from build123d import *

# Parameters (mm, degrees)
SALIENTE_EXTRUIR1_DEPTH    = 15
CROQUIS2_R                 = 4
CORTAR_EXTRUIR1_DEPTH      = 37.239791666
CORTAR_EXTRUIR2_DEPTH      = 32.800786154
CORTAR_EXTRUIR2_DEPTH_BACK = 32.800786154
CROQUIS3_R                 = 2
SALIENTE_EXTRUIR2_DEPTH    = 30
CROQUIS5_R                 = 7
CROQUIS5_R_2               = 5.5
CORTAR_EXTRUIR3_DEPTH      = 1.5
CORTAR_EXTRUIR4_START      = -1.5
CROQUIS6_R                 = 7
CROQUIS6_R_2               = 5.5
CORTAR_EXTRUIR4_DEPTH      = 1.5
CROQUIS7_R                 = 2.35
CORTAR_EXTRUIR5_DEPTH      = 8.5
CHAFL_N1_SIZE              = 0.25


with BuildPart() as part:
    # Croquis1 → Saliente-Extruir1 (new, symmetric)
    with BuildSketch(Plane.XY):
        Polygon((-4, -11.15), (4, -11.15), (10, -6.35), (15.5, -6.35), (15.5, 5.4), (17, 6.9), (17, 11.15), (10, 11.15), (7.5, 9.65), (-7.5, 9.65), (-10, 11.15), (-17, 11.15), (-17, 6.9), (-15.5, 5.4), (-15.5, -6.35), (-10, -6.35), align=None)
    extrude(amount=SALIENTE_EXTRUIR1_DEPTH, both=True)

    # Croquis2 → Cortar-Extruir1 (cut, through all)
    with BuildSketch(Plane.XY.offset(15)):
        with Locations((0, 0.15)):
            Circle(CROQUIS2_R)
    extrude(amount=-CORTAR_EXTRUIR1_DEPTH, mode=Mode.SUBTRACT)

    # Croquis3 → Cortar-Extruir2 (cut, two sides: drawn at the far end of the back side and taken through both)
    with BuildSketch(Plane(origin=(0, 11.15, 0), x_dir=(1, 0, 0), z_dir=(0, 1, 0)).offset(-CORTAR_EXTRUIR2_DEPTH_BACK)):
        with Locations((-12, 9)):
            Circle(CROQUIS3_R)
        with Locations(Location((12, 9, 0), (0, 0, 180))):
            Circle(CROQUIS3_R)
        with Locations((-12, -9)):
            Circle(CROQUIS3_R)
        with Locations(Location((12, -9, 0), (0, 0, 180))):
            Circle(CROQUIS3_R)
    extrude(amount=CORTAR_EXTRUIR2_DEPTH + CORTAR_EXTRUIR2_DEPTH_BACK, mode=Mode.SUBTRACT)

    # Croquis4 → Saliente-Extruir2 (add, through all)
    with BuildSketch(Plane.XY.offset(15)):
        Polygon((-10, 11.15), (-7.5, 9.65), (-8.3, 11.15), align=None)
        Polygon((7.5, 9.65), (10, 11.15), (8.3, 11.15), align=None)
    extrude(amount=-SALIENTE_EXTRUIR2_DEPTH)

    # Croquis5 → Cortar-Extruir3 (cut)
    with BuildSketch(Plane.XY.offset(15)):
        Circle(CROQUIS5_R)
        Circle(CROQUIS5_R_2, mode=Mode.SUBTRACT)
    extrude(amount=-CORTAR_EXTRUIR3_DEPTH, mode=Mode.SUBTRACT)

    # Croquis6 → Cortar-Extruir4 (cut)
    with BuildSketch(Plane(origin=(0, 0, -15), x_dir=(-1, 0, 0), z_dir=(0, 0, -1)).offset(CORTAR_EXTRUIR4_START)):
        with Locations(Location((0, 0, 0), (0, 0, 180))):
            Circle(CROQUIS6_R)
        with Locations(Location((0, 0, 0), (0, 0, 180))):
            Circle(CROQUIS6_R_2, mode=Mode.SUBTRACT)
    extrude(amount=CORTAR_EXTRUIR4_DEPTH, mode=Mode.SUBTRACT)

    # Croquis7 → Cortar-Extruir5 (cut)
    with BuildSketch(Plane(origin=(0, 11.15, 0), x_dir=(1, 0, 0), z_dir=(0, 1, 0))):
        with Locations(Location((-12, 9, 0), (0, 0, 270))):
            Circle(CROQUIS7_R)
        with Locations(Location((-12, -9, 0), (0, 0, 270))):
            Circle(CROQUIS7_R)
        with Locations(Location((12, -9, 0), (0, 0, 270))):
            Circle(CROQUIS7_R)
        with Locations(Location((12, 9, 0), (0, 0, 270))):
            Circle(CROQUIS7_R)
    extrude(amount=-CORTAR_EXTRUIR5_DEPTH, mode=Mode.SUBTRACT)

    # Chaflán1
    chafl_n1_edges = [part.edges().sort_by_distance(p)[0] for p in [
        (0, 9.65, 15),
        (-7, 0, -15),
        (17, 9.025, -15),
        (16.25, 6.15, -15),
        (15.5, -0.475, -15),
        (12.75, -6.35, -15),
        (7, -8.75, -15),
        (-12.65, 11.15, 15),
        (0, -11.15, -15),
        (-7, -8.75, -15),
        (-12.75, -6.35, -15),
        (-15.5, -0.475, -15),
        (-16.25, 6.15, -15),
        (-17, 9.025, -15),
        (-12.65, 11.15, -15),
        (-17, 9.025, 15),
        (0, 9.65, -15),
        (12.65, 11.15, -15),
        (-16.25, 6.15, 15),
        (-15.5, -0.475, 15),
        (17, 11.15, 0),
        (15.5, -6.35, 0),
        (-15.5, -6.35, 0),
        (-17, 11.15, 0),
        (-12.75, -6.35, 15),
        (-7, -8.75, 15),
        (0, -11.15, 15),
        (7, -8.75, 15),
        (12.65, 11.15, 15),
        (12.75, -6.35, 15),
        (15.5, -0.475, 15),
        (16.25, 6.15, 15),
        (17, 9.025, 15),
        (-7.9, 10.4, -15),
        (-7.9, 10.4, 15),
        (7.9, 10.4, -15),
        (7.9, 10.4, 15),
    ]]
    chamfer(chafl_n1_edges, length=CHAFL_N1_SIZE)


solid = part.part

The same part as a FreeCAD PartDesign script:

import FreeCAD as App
import Part
import Sketcher
Q = App.Units.Quantity


def edges_at(feature, points):
    """Names of the edges that pass closest to the given points."""
    edges = feature.Shape.Edges
    near = lambda p: min(range(len(edges)), key=lambda i: edges[i].distToShape(Part.Vertex(*p))[0])
    return sorted({f"Edge{near(p) + 1}" for p in points})

doc = App.newDocument("Part")
body = doc.addObject("PartDesign::Body", "Body")

sketch1 = body.newObject("Sketcher::SketchObject", "Sketch")
sketch1.AttachmentSupport = (doc.getObject("XY_Plane"), [""])
sketch1.MapMode = "FlatFace"
sketch1.addGeometry([
    Part.LineSegment(App.Vector(-4, -11.2, 0), App.Vector(4, -11.2, 0)),
    Part.LineSegment(App.Vector(4, -11.2, 0), App.Vector(10, -6.3, 0)),
    Part.LineSegment(App.Vector(10, -6.3, 0), App.Vector(15.5, -6.3, 0)),
    Part.LineSegment(App.Vector(15.5, -6.3, 0), App.Vector(15.5, 5.4, 0)),
    Part.LineSegment(App.Vector(15.5, 5.4, 0), App.Vector(17, 6.9, 0)),
    Part.LineSegment(App.Vector(17, 6.9, 0), App.Vector(17, 11.2, 0)),
    Part.LineSegment(App.Vector(17, 11.2, 0), App.Vector(10, 11.2, 0)),
    Part.LineSegment(App.Vector(10, 11.2, 0), App.Vector(7.5, 9.7, 0)),
    Part.LineSegment(App.Vector(7.5, 9.7, 0), App.Vector(-7.5, 9.7, 0)),
    Part.LineSegment(App.Vector(-7.5, 9.7, 0), App.Vector(-10, 11.2, 0)),
    Part.LineSegment(App.Vector(-10, 11.2, 0), App.Vector(-17, 11.2, 0)),
    Part.LineSegment(App.Vector(-17, 11.2, 0), App.Vector(-17, 6.9, 0)),
    Part.LineSegment(App.Vector(-17, 6.9, 0), App.Vector(-15.5, 5.4, 0)),
    Part.LineSegment(App.Vector(-15.5, 5.4, 0), App.Vector(-15.5, -6.3, 0)),
    Part.LineSegment(App.Vector(-15.5, -6.3, 0), App.Vector(-10, -6.3, 0)),
    Part.LineSegment(App.Vector(-10, -6.3, 0), App.Vector(-4, -11.2, 0)),
], False)
sketch1.addConstraint([
    Sketcher.Constraint("Coincident", 0, 2, 1, 1),
    Sketcher.Constraint("Coincident", 1, 2, 2, 1),
    Sketcher.Constraint("Coincident", 2, 2, 3, 1),
    Sketcher.Constraint("Coincident", 3, 2, 4, 1),
    Sketcher.Constraint("Coincident", 4, 2, 5, 1),
    Sketcher.Constraint("Coincident", 5, 2, 6, 1),
    Sketcher.Constraint("Coincident", 6, 2, 7, 1),
    Sketcher.Constraint("Coincident", 7, 2, 8, 1),
    Sketcher.Constraint("Coincident", 8, 2, 9, 1),
    Sketcher.Constraint("Coincident", 9, 2, 10, 1),
    Sketcher.Constraint("Coincident", 10, 2, 11, 1),
    Sketcher.Constraint("Coincident", 11, 2, 12, 1),
    Sketcher.Constraint("Coincident", 12, 2, 13, 1),
    Sketcher.Constraint("Coincident", 13, 2, 14, 1),
    Sketcher.Constraint("Coincident", 14, 2, 15, 1),
    Sketcher.Constraint("Coincident", 15, 2, 0, 1),
    Sketcher.Constraint("Horizontal", 0),
    Sketcher.Constraint("Horizontal", 2),
    Sketcher.Constraint("Vertical", 3),
    Sketcher.Constraint("Vertical", 5),
    Sketcher.Constraint("Horizontal", 6),
    Sketcher.Constraint("Horizontal", 8),
    Sketcher.Constraint("Horizontal", 10),
    Sketcher.Constraint("Vertical", 11),
    Sketcher.Constraint("Vertical", 13),
    Sketcher.Constraint("Horizontal", 14),
    Sketcher.Constraint("Symmetric", 6, 2, 9, 2, -2),
    Sketcher.Constraint("Symmetric", 4, 2, 11, 2, -2),
    Sketcher.Constraint("Symmetric", 3, 2, 12, 2, -2),
    Sketcher.Constraint("Symmetric", 1, 2, 14, 2, -2),
    Sketcher.Constraint("Perpendicular", 4, 12),
    Sketcher.Constraint("Vertical", 1, 2, 6, 2),
    Sketcher.Constraint("Equal", 7, 9),
    Sketcher.Constraint("Equal", 1, 15),
    Sketcher.Constraint("DistanceX", 0, 1, 0, 2, Q("8 mm")),
    Sketcher.Constraint("DistanceX", 6, 2, 6, 1, Q("7 mm")),
    Sketcher.Constraint("DistanceX", 8, 2, 8, 1, Q("15 mm")),
    Sketcher.Constraint("DistanceX", 2, 1, 2, 2, Q("5.5 mm")),
    Sketcher.Constraint("DistanceX", -1, 1, 1, 2, Q("10 mm")),
    Sketcher.Constraint("DistanceY", 1, 2, 7, 2, Q("16 mm")),
    Sketcher.Constraint("DistanceY", 3, 1, 3, 2, Q("11.75 mm")),
    Sketcher.Constraint("DistanceY", 5, 1, 5, 2, Q("4.25 mm")),
    Sketcher.Constraint("DistanceY", -1, 1, 3, 2, Q("5.4 mm")),
    Sketcher.Constraint("DistanceY", 0, 2, 1, 2, Q("4.8 mm")),
])
pad1 = body.newObject("PartDesign::Pad", "Pad")
pad1.Profile = sketch1
pad1.Length = 30
pad1.Midplane = True

sketch2 = body.newObject("Sketcher::SketchObject", "Sketch001")
sketch2.AttachmentSupport = (doc.getObject("XY_Plane"), [""])
sketch2.MapMode = "FlatFace"
sketch2.AttachmentOffset = App.Placement(App.Vector(0, 0, 15), App.Rotation())
sketch2.addGeometry(Part.Circle(App.Vector(0, 0.1, 0), App.Vector(0, 0, 1), 4), False)
sketch2.addConstraint([
    Sketcher.Constraint("PointOnObject", 0, 3, -2),
    Sketcher.Constraint("Diameter", 0, Q("8 mm")),
    Sketcher.Constraint("DistanceY", -1, 1, 0, 3, Q("0.15 mm")),
])
pocket1 = body.newObject("PartDesign::Pocket", "Pocket")
pocket1.Profile = sketch2
pocket1.Type = "ThroughAll"

sketch3 = body.newObject("Sketcher::SketchObject", "Sketch002")
sketch3.AttachmentSupport = (doc.getObject("XZ_Plane"), [""])
sketch3.MapMode = "FlatFace"
sketch3.AttachmentOffset = App.Placement(App.Vector(0, 0, -11.15), App.Rotation())
sketch3.addGeometry([
    Part.Circle(App.Vector(-12, -9, 0), App.Vector(0, 0, 1), 2),
    Part.Circle(App.Vector(12, -9, 0), App.Vector(0, 0, 1), 2),
    Part.Circle(App.Vector(-12, 9, 0), App.Vector(0, 0, 1), 2),
    Part.Circle(App.Vector(12, 9, 0), App.Vector(0, 0, 1), 2),
], False)
sketch3.addConstraint([
    Sketcher.Constraint("Equal", 0, 1),
    Sketcher.Constraint("Equal", 1, 2),
    Sketcher.Constraint("Equal", 2, 3),
    Sketcher.Constraint("Symmetric", 1, 3, 2, 3, -1, 1),
    Sketcher.Constraint("Symmetric", 0, 3, 3, 3, -1, 1),
    Sketcher.Constraint("Symmetric", 0, 3, 1, 3, -2),
    Sketcher.Constraint("Diameter", 0, Q("4 mm")),
    Sketcher.Constraint("DistanceX", 0, 3, -1, 1, Q("12 mm")),
    Sketcher.Constraint("DistanceY", 0, 3, -1, 1, Q("9 mm")),
])
pocket2 = body.newObject("PartDesign::Pocket", "Pocket001")
pocket2.Profile = sketch3
pocket2.Type = "ThroughAll"
pocket2.Midplane = True

sketch4 = body.newObject("Sketcher::SketchObject", "Sketch003")
sketch4.AttachmentSupport = (doc.getObject("XY_Plane"), [""])
sketch4.MapMode = "FlatFace"
sketch4.AttachmentOffset = App.Placement(App.Vector(0, 0, 15), App.Rotation())
sketch4.addGeometry([
    Part.LineSegment(App.Vector(-10, 11.2, 0), App.Vector(-7.5, 9.7, 0)),
    Part.LineSegment(App.Vector(-7.5, 9.7, 0), App.Vector(-8.3, 11.2, 0)),
    Part.LineSegment(App.Vector(-8.3, 11.2, 0), App.Vector(-10, 11.2, 0)),
    Part.LineSegment(App.Vector(7.5, 9.7, 0), App.Vector(10, 11.2, 0)),
    Part.LineSegment(App.Vector(10, 11.2, 0), App.Vector(8.3, 11.2, 0)),
    Part.LineSegment(App.Vector(8.3, 11.2, 0), App.Vector(7.5, 9.7, 0)),
], False)
sketch4.addConstraint([
    Sketcher.Constraint("Coincident", 0, 2, 1, 1),
    Sketcher.Constraint("Coincident", 1, 2, 2, 1),
    Sketcher.Constraint("Coincident", 2, 2, 0, 1),
    Sketcher.Constraint("Coincident", 3, 2, 4, 1),
    Sketcher.Constraint("Coincident", 4, 2, 5, 1),
    Sketcher.Constraint("Coincident", 5, 2, 3, 1),
    Sketcher.Constraint("Horizontal", 2),
    Sketcher.Constraint("Horizontal", 4),
    Sketcher.Constraint("Symmetric", 2, 2, 3, 2, -2),
    Sketcher.Constraint("Symmetric", 0, 2, 5, 2, -2),
    Sketcher.Constraint("Equal", 2, 4),
    Sketcher.Constraint("DistanceX", 2, 2, 2, 1, Q("1.7 mm")),
    Sketcher.Constraint("DistanceX", 2, 2, -1, 1, Q("10 mm")),
    Sketcher.Constraint("DistanceX", 0, 2, 5, 2, Q("15 mm")),
    Sketcher.Constraint("Distance", 1, Q("1.7 mm")),
    Sketcher.Constraint("DistanceY", -1, 1, 0, 2, Q("9.65 mm")),
])
pad2 = body.newObject("PartDesign::Pad", "Pad001")
pad2.Profile = sketch4
pad2.Length = 30
pad2.Reversed = True

sketch5 = body.newObject("Sketcher::SketchObject", "Sketch004")
sketch5.AttachmentSupport = (doc.getObject("XY_Plane"), [""])
sketch5.MapMode = "FlatFace"
sketch5.AttachmentOffset = App.Placement(App.Vector(0, 0, 15), App.Rotation())
sketch5.addGeometry([
    Part.Circle(App.Vector(0, 0, 0), App.Vector(0, 0, 1), 7),
    Part.Circle(App.Vector(0, 0, 0), App.Vector(0, 0, 1), 6),
], False)
sketch5.addConstraint([
    Sketcher.Constraint("Coincident", 0, 3, -1, 1),
    Sketcher.Constraint("Coincident", 1, 3, -1, 1),
    Sketcher.Constraint("Diameter", 0, Q("14 mm")),
    Sketcher.Constraint("Diameter", 1, Q("11 mm")),
])
pocket3 = body.newObject("PartDesign::Pocket", "Pocket002")
pocket3.Profile = sketch5
pocket3.Length = 1.5

sketch6 = body.newObject("Sketcher::SketchObject", "Sketch005")
sketch6.AttachmentSupport = (doc.getObject("XY_Plane"), [""])
sketch6.MapMode = "FlatFace"
sketch6.AttachmentOffset = App.Placement(App.Vector(0, 0, -13.5), App.Rotation())
sketch6.addGeometry([
    Part.Circle(App.Vector(0, 0, 0), App.Vector(0, 0, 1), 7),
    Part.Circle(App.Vector(0, 0, 0), App.Vector(0, 0, 1), 6),
], False)
sketch6.addConstraint([
    Sketcher.Constraint("Coincident", 0, 3, -1, 1),
    Sketcher.Constraint("Coincident", 1, 3, -1, 1),
    Sketcher.Constraint("Diameter", 0, Q("14 mm")),
    Sketcher.Constraint("Diameter", 1, Q("11 mm")),
])
pocket4 = body.newObject("PartDesign::Pocket", "Pocket003")
pocket4.Profile = sketch6
pocket4.Length = 1.5

sketch7 = body.newObject("Sketcher::SketchObject", "Sketch006")
sketch7.AttachmentSupport = (doc.getObject("XZ_Plane"), [""])
sketch7.MapMode = "FlatFace"
sketch7.AttachmentOffset = App.Placement(App.Vector(0, 0, -11.15), App.Rotation())
sketch7.addGeometry([
    Part.Circle(App.Vector(-12, -9, 0), App.Vector(0, 0, 1), 2.4),
    Part.Circle(App.Vector(-12, 9, 0), App.Vector(0, 0, 1), 2.4),
    Part.Circle(App.Vector(12, 9, 0), App.Vector(0, 0, 1), 2.4),
    Part.Circle(App.Vector(12, -9, 0), App.Vector(0, 0, 1), 2.4),
], False)
sketch7.addConstraint([
    Sketcher.Constraint("Equal", 0, 1),
    Sketcher.Constraint("Equal", 1, 2),
    Sketcher.Constraint("Equal", 2, 3),
    Sketcher.Constraint("Symmetric", 0, 3, 2, 3, -1, 1),
    Sketcher.Constraint("Symmetric", 1, 3, 3, 3, -1, 1),
    Sketcher.Constraint("Symmetric", 1, 3, 2, 3, -2),
    Sketcher.Constraint("Diameter", 0, Q("4.7 mm")),
    Sketcher.Constraint("DistanceX", 0, 3, -1, 1, Q("12 mm")),
    Sketcher.Constraint("DistanceY", 0, 3, -1, 1, Q("9 mm")),
])
pocket5 = body.newObject("PartDesign::Pocket", "Pocket004")
pocket5.Profile = sketch7
pocket5.Length = 8.5
pocket5.Reversed = True
doc.recompute()

chamfer = body.newObject("PartDesign::Chamfer", "Chamfer")
chamfer.Base = (pocket5, edges_at(pocket5, [
    (0, 9.65, 15),
    (-7, 0, -15),
    (17, 9.025, -15),
    (16.25, 6.15, -15),
    (15.5, -0.475, -15),
    (12.75, -6.35, -15),
    (7, -8.75, -15),
    (-12.65, 11.15, 15),
    (0, -11.15, -15),
    (-7, -8.75, -15),
    (-12.75, -6.35, -15),
    (-15.5, -0.475, -15),
    (-16.25, 6.15, -15),
    (-17, 9.025, -15),
    (-12.65, 11.15, -15),
    (-17, 9.025, 15),
    (0, 9.65, -15),
    (12.65, 11.15, -15),
    (-16.25, 6.15, 15),
    (-15.5, -0.475, 15),
    (17, 11.15, 0),
    (15.5, -6.35, 0),
    (-15.5, -6.35, 0),
    (-17, 11.15, 0),
    (-12.75, -6.35, 15),
    (-7, -8.75, 15),
    (0, -11.15, 15),
    (7, -8.75, 15),
    (12.65, 11.15, 15),
    (12.75, -6.35, 15),
    (15.5, -0.475, 15),
    (16.25, 6.15, 15),
    (17, 9.025, 15),
    (-7.9, 10.4, -15),
    (-7.9, 10.4, 15),
    (7.9, 10.4, -15),
    (7.9, 10.4, 15),
]))
chamfer.Size = 0.25

doc.recompute()
